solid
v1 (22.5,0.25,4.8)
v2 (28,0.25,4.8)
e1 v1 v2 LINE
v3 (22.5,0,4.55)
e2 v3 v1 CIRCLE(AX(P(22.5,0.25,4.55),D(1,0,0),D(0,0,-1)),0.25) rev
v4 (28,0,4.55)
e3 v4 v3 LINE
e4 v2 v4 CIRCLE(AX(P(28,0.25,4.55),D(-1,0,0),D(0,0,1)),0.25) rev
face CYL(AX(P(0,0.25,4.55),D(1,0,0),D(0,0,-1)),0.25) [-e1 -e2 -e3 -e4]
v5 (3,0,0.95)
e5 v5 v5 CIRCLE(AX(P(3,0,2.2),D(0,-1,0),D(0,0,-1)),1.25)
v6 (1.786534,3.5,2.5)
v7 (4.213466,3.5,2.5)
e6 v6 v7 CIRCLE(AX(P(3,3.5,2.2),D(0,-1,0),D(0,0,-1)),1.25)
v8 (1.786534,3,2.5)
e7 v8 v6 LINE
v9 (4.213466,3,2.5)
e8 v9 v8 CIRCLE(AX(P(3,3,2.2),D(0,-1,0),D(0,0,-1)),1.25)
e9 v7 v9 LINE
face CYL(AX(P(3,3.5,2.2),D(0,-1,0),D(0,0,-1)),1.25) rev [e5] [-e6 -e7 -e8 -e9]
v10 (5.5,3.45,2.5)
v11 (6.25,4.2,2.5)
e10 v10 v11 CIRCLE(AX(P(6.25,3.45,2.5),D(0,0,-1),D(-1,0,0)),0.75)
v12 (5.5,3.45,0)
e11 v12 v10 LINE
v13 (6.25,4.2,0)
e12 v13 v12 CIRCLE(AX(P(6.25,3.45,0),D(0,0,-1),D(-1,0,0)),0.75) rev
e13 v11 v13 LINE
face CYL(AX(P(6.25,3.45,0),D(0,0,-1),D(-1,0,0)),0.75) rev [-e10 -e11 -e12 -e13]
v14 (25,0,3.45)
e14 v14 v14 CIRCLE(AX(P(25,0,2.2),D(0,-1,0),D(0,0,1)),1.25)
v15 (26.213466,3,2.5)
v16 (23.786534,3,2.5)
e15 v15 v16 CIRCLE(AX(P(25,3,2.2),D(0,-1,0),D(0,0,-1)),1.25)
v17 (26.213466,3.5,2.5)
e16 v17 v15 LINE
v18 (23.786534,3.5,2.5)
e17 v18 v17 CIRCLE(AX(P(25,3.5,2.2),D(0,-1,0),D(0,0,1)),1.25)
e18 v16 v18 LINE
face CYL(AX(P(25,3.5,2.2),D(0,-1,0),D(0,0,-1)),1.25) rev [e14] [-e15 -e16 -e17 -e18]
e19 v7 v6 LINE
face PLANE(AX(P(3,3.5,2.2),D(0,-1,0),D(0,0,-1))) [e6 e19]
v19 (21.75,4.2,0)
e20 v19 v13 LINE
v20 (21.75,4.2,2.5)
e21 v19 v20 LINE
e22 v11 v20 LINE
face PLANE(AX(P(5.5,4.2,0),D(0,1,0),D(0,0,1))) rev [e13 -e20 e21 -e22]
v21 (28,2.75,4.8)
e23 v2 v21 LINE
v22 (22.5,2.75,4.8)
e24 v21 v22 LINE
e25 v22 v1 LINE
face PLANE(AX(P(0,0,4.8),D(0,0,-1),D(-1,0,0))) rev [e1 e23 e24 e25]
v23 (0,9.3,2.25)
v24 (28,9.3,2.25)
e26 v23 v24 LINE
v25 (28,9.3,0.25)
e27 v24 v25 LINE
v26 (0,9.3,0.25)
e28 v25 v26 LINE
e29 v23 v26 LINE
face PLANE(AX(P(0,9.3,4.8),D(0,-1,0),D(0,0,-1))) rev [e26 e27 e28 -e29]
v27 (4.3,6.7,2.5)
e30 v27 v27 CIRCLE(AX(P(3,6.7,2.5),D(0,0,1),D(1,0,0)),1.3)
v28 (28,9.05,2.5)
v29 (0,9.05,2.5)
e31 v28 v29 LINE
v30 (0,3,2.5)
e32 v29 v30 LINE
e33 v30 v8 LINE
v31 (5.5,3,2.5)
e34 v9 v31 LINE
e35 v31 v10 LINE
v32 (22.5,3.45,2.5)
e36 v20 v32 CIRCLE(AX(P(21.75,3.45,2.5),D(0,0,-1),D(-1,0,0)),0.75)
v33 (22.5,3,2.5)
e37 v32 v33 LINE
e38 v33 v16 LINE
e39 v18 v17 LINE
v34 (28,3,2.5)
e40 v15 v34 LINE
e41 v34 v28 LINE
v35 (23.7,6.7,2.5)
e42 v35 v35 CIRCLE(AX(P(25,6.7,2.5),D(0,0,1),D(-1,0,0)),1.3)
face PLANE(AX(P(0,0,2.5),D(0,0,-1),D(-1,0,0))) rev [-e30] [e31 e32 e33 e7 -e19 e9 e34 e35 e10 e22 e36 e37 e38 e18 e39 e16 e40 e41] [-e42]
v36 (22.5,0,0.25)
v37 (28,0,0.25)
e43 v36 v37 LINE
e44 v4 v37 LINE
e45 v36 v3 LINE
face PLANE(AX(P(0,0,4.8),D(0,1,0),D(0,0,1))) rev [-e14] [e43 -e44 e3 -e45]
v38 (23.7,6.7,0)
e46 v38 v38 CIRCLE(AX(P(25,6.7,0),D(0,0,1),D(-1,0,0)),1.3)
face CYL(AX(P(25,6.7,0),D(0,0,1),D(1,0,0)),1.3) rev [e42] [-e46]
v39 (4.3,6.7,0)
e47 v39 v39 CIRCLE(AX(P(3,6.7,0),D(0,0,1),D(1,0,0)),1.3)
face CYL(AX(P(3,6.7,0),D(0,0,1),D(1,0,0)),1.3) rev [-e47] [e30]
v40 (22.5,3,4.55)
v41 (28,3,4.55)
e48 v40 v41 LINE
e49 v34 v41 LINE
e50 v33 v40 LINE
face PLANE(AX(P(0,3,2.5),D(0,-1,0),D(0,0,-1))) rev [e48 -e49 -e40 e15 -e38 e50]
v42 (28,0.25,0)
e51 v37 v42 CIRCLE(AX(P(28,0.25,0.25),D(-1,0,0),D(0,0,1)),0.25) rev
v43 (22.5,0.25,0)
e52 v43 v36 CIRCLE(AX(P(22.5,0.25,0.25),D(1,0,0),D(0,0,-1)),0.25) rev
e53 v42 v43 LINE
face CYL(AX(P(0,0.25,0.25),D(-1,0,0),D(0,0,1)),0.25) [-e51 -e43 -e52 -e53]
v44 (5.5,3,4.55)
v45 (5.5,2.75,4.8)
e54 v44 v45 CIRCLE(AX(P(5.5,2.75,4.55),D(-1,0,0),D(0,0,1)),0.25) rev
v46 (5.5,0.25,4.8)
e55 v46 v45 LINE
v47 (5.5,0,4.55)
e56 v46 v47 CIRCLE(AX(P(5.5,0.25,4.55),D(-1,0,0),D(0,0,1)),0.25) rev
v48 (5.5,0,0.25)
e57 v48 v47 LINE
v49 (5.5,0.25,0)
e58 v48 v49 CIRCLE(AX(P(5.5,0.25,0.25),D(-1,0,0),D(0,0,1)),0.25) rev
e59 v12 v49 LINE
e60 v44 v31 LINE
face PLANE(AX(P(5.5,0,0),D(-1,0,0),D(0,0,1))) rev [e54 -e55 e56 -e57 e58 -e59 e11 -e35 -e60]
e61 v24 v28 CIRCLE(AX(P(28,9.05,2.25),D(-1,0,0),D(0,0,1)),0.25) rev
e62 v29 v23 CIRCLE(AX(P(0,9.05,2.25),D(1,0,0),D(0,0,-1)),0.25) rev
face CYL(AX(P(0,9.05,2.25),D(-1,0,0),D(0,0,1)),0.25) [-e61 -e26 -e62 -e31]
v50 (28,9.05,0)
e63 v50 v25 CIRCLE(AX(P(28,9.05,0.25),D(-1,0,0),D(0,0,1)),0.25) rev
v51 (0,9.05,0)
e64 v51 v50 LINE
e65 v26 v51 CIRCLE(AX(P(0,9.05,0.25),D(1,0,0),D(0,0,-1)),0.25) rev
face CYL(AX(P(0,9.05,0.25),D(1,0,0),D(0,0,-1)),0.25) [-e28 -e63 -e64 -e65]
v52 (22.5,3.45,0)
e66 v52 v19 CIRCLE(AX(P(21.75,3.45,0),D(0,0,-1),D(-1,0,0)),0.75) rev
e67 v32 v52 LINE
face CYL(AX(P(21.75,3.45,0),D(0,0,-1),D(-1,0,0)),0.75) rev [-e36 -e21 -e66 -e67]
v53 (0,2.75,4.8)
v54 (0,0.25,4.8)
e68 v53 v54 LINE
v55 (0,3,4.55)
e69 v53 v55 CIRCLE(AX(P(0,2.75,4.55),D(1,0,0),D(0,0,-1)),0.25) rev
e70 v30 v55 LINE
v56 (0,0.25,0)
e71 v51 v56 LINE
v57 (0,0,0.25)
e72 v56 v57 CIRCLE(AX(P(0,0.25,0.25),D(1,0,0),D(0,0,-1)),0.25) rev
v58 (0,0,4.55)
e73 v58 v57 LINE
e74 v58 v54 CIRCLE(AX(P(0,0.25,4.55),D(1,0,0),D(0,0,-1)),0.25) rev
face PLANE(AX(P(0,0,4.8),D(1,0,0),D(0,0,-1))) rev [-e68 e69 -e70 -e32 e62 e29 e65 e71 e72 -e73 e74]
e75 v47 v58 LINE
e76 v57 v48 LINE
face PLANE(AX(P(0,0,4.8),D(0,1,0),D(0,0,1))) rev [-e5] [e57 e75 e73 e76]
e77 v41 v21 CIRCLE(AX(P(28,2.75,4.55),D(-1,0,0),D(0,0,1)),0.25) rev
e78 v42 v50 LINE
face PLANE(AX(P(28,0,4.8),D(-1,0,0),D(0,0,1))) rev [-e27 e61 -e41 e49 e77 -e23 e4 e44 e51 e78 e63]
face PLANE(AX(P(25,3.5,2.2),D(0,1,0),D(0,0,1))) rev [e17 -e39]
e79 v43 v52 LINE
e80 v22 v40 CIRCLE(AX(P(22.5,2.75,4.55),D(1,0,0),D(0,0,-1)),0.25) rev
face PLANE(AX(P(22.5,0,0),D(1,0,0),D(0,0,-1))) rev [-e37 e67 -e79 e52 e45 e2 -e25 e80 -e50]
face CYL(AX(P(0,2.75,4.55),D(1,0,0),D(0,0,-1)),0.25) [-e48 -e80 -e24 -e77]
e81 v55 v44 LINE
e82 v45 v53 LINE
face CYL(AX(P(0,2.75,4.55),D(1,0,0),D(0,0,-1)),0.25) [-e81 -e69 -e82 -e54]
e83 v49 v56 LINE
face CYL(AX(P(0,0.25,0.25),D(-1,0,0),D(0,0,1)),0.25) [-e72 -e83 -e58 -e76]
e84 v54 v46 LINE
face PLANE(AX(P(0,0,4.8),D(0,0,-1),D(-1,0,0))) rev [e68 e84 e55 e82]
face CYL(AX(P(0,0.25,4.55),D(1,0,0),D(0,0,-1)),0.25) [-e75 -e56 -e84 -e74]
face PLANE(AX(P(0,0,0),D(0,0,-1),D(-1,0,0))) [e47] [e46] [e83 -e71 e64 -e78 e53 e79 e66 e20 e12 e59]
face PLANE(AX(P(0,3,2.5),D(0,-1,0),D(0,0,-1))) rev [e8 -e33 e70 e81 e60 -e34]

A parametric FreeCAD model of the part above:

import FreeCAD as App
import Part
import Sketcher

V = App.Vector
Q = App.Units.Quantity


def edges_at(feature, points):
    """Names of the edges that pass closest to the given points."""
    edges = feature.Shape.Edges
    near = lambda p: min(range(len(edges)), key=lambda i: edges[i].distToShape(Part.Vertex(*p))[0])
    return sorted({f"Edge{near(p) + 1}" for p in points})

doc = App.newDocument("Part")
body = doc.addObject("PartDesign::Body", "Body")

# Sketch on XY plane
sketch1 = body.newObject("Sketcher::SketchObject", "Sketch")
sketch1.AttachmentSupport = (doc.getObject("XY_Plane"), [""])
sketch1.MapMode = "FlatFace"
sketch1.addGeometry([
    Part.LineSegment(V(0, 9.3, 0), V(0, 0, 0)),
    Part.LineSegment(V(0, 0, 0), V(28, 0, 0)),
    Part.LineSegment(V(28, 0, 0), V(28, 9.3, 0)),
    Part.LineSegment(V(28, 9.3, 0), V(0, 9.3, 0)),
], False)
sketch1.addConstraint([
    Sketcher.Constraint("Coincident", 0, 2, 1, 1),
    Sketcher.Constraint("Coincident", 1, 2, 2, 1),
    Sketcher.Constraint("Coincident", 2, 2, 3, 1),
    Sketcher.Constraint("Coincident", 3, 2, 0, 1),
    Sketcher.Constraint("Vertical", 0),
    Sketcher.Constraint("Horizontal", 1),
    Sketcher.Constraint("Vertical", 2),
    Sketcher.Constraint("Horizontal", 3),
    Sketcher.Constraint("Coincident", 0, 2, -1, 1),
    Sketcher.Constraint("DistanceX", 1, 1, 1, 2, Q("28 mm")),
    Sketcher.Constraint("DistanceY", 0, 2, 0, 1, Q("9.3 mm")),
])
pad1 = body.newObject("PartDesign::Pad", "Pad")
pad1.Profile = sketch1
pad1.Length = 4.8

# Sketch on XY plane
sketch2 = body.newObject("Sketcher::SketchObject", "Sketch001")
sketch2.AttachmentSupport = (doc.getObject("XY_Plane"), [""])
sketch2.MapMode = "FlatFace"
sketch2.AttachmentOffset = App.Placement(V(0, 0, 4.8), App.Rotation())
sketch2.addGeometry([
    Part.LineSegment(V(0, 9.3, 0), V(0, 3, 0)),
    Part.LineSegment(V(0, 3, 0), V(28, 3, 0)),
    Part.LineSegment(V(28, 3, 0), V(28, 9.3, 0)),
    Part.LineSegment(V(28, 9.3, 0), V(0, 9.3, 0)),
], False)
sketch2.addConstraint([
    Sketcher.Constraint("Coincident", 0, 2, 1, 1),
    Sketcher.Constraint("Coincident", 1, 2, 2, 1),
    Sketcher.Constraint("Coincident", 2, 2, 3, 1),
    Sketcher.Constraint("Coincident", 3, 2, 0, 1),
    Sketcher.Constraint("Vertical", 0),
    Sketcher.Constraint("Horizontal", 1),
    Sketcher.Constraint("Vertical", 2),
    Sketcher.Constraint("Horizontal", 3),
    Sketcher.Constraint("PointOnObject", 0, 2, -2),
    Sketcher.Constraint("DistanceX", 1, 1, 1, 2, Q("28 mm")),
    Sketcher.Constraint("DistanceY", 0, 2, 0, 1, Q("6.3 mm")),
    Sketcher.Constraint("DistanceY", -1, 1, 0, 2, Q("3 mm")),
])
pocket1 = body.newObject("PartDesign::Pocket", "Pocket")
pocket1.Profile = sketch2
pocket1.Length = 2.3

# Sketch on XY plane
sketch3 = body.newObject("Sketcher::SketchObject", "Sketch002")
sketch3.AttachmentSupport = (doc.getObject("XY_Plane"), [""])
sketch3.MapMode = "FlatFace"
sketch3.AttachmentOffset = App.Placement(V(0, 0, 4.8), App.Rotation())
sketch3.addGeometry([
    Part.LineSegment(V(5.5, 4.2, 0), V(5.5, 0, 0)),
    Part.LineSegment(V(5.5, 0, 0), V(22.5, 0, 0)),
    Part.LineSegment(V(22.5, 0, 0), V(22.5, 4.2, 0)),
    Part.LineSegment(V(22.5, 4.2, 0), V(5.5, 4.2, 0)),
], False)
sketch3.addConstraint([
    Sketcher.Constraint("Coincident", 0, 2, 1, 1),
    Sketcher.Constraint("Coincident", 1, 2, 2, 1),
    Sketcher.Constraint("Coincident", 2, 2, 3, 1),
    Sketcher.Constraint("Coincident", 3, 2, 0, 1),
    Sketcher.Constraint("Vertical", 0),
    Sketcher.Constraint("Horizontal", 1),
    Sketcher.Constraint("Vertical", 2),
    Sketcher.Constraint("Horizontal", 3),
    Sketcher.Constraint("PointOnObject", 0, 2, -1),
    Sketcher.Constraint("DistanceX", 1, 1, 1, 2, Q("17 mm")),
    Sketcher.Constraint("DistanceY", 0, 2, 0, 1, Q("4.2 mm")),
    Sketcher.Constraint("DistanceX", -1, 1, 0, 2, Q("5.5 mm")),
])
pocket2 = body.newObject("PartDesign::Pocket", "Pocket001")
pocket2.Profile = sketch3
pocket2.Type = "ThroughAll"
pocket2.Midplane = True

# Sketch on XY plane
sketch4 = body.newObject("Sketcher::SketchObject", "Sketch003")
sketch4.AttachmentSupport = (doc.getObject("XY_Plane"), [""])
sketch4.MapMode = "FlatFace"
sketch4.AttachmentOffset = App.Placement(V(0, 0, 2.5), App.Rotation())
sketch4.addGeometry([
    Part.Circle(V(3, 6.7, 0), V(0, 0, 1), 1.3),
    Part.Circle(V(25, 6.7, 0), V(0, 0, 1), 1.3),
], False)
sketch4.addConstraint([
    Sketcher.Constraint("Equal", 0, 1),
    Sketcher.Constraint("Horizontal", 0, 3, 1, 3),
    Sketcher.Constraint("Diameter", 0, Q("2.6 mm")),
    Sketcher.Constraint("DistanceX", -1, 1, 0, 3, Q("3 mm")),
    Sketcher.Constraint("DistanceX", -1, 1, 1, 3, Q("25 mm")),
    Sketcher.Constraint("DistanceY", -1, 1, 0, 3, Q("6.7 mm")),
])
pocket3 = body.newObject("PartDesign::Pocket", "Pocket002")
pocket3.Profile = sketch4
pocket3.Type = "ThroughAll"
doc.recompute()

fillet = body.newObject("PartDesign::Fillet", "Fillet")
fillet.Base = (pocket3, edges_at(pocket3, [(5.5, 4.2, 1.25), (22.5, 4.2, 1.25)]))
fillet.Radius = 0.75

# Sketch on XZ plane
sketch5 = body.newObject("Sketcher::SketchObject", "Sketch004")
sketch5.AttachmentSupport = (doc.getObject("XZ_Plane"), [""])
sketch5.MapMode = "FlatFace"
sketch5.addGeometry([
    Part.Circle(V(3, 2.2, 0), V(0, 0, 1), 1.25),
    Part.Circle(V(25, 2.2, 0), V(0, 0, 1), 1.25),
], False)
sketch5.addConstraint([
    Sketcher.Constraint("Equal", 0, 1),
    Sketcher.Constraint("Horizontal", 0, 3, 1, 3),
    Sketcher.Constraint("Diameter", 0, Q("2.5 mm")),
    Sketcher.Constraint("DistanceX", -1, 1, 0, 3, Q("3 mm")),
    Sketcher.Constraint("DistanceX", -1, 1, 1, 3, Q("25 mm")),
    Sketcher.Constraint("DistanceY", -1, 1, 0, 3, Q("2.2 mm")),
])
pocket4 = body.newObject("PartDesign::Pocket", "Pocket003")
pocket4.Profile = sketch5
pocket4.Length = 3.5
doc.recompute()

fillet2 = body.newObject("PartDesign::Fillet", "Fillet001")
fillet2.Base = (pocket4, edges_at(pocket4, [
    (14, 9.3, 2.5),
    (2.75, 3, 4.8),
    (25.25, 3, 4.8),
    (25.25, 0, 0),
    (25.25, 0, 4.8),
    (14, 9.3, 0),
    (2.75, 0, 0),
    (2.75, 0, 4.8),
]))
fillet2.Radius = 0.25

doc.recompute()
